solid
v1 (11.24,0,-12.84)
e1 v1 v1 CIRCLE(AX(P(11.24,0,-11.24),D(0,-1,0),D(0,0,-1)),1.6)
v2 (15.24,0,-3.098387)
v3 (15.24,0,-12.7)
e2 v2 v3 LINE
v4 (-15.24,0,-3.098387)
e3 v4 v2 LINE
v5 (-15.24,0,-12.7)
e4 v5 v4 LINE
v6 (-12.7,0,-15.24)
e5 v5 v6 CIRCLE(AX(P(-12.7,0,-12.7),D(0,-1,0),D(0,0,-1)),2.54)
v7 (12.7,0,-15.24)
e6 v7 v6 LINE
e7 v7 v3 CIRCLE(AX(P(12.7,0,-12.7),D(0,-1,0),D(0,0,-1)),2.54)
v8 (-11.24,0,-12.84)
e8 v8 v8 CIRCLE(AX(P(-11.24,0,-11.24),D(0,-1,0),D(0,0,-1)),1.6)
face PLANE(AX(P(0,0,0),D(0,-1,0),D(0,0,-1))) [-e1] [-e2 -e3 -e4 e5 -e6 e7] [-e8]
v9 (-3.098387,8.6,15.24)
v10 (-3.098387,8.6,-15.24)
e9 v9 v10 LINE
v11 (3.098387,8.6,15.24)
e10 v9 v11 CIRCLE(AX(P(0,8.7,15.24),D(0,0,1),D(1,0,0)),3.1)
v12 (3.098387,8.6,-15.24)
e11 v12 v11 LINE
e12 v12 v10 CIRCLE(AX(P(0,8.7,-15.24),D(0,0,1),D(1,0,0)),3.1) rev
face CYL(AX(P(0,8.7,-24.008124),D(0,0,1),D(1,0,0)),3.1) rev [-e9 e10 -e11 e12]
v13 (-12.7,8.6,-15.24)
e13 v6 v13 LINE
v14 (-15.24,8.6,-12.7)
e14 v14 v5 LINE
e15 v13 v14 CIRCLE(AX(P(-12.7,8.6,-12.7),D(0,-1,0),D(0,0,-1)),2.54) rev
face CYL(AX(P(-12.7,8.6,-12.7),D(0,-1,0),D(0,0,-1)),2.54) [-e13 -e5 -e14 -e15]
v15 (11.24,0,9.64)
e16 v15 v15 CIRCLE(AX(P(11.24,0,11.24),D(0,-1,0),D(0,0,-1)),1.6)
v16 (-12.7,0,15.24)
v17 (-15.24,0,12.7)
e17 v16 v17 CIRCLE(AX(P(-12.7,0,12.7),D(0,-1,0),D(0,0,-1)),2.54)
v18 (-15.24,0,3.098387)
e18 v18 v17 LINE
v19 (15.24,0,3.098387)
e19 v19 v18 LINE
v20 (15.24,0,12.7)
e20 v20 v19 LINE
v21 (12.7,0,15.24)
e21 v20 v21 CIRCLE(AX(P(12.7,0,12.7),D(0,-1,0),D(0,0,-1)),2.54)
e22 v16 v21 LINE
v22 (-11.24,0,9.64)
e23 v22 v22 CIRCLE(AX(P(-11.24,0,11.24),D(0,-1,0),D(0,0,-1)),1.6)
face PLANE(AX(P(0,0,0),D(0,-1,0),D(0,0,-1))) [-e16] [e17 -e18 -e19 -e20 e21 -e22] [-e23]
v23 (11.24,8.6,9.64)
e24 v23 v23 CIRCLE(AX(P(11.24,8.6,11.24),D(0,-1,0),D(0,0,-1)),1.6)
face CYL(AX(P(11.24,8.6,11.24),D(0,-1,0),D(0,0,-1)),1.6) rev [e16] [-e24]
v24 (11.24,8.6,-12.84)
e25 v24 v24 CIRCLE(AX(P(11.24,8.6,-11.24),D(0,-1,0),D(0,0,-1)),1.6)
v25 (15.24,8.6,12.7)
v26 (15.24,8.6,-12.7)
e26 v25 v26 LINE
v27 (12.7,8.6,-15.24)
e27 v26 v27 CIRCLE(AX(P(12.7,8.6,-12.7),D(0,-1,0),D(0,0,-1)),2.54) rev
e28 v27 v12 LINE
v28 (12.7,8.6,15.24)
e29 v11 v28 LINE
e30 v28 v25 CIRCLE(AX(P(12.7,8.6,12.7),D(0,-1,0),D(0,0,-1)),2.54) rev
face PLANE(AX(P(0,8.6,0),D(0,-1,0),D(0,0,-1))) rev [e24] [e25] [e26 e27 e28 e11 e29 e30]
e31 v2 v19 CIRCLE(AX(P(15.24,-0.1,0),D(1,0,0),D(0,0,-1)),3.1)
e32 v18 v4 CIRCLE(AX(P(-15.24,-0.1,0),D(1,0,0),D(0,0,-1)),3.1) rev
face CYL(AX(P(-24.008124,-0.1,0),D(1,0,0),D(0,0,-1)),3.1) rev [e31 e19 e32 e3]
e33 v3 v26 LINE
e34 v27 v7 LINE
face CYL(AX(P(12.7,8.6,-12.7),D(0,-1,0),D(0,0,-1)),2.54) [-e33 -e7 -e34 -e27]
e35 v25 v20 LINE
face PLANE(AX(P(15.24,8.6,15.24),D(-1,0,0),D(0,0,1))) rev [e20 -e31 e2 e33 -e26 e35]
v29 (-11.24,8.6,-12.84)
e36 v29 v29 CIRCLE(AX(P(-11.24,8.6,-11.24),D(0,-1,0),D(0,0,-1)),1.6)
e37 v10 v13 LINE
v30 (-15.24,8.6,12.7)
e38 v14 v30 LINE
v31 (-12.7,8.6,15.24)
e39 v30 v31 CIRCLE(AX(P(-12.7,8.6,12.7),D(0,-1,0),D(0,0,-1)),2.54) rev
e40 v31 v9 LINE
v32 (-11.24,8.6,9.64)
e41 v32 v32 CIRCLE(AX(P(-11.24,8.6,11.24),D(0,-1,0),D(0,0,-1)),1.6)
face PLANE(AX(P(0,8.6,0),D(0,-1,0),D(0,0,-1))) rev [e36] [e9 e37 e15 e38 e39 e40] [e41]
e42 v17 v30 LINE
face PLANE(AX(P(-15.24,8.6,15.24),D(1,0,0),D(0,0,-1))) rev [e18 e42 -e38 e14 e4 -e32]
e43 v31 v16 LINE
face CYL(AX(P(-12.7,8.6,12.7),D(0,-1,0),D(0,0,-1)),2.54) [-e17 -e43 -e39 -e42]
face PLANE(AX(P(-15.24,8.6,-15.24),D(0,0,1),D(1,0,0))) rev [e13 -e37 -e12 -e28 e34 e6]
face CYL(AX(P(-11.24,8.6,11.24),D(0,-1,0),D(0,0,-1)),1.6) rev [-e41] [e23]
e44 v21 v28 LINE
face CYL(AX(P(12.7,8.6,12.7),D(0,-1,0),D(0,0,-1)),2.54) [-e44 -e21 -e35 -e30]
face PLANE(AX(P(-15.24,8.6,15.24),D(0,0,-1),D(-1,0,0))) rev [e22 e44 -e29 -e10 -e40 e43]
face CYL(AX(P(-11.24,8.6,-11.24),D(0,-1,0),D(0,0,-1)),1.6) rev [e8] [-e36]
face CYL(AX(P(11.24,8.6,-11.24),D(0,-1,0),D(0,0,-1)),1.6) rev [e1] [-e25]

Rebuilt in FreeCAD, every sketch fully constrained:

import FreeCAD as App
import Part
import Sketcher

V = App.Vector


def edges_at(feature, points):
    """Names of the edges that pass closest to the given points."""
    edges = feature.Shape.Edges
    near = lambda p: min(range(len(edges)), key=lambda i: edges[i].distToShape(Part.Vertex(*p))[0])
    return sorted({f"Edge{near(p) + 1}" for p in points})


def add_polygon(sketch, points):
    """Adds a closed chain of lines whose ends are joined by coincident constraints."""
    first, n = sketch.GeometryCount, len(points)
    for a, b in zip(points, points[1:] + points[:1]):
        sketch.addGeometry(Part.LineSegment(App.Vector(*a, 0), App.Vector(*b, 0)), False)
    for i in range(n):
        sketch.addConstraint(Sketcher.Constraint("Coincident", first + i, 2, first + (i + 1) % n, 1))

doc = App.newDocument("Part")
body = doc.addObject("PartDesign::Body", "Body")

# Sketch on XZ plane
sketch1 = body.newObject("Sketcher::SketchObject", "Sketch")
sketch1.AttachmentSupport = (doc.getObject("XZ_Plane"), [""])
sketch1.MapMode = "FlatFace"
add_polygon(sketch1, [(-15.24, -15.24), (-15.24, 15.24), (15.24, 15.24), (15.24, -15.24)])  # lines 0-3
sketch1.addConstraint([
    Sketcher.Constraint("Vertical", 0),
    Sketcher.Constraint("Horizontal", 1),
    Sketcher.Constraint("Vertical", 2),
    Sketcher.Constraint("Horizontal", 3),
    Sketcher.Constraint("Symmetric", 0, 2, 2, 2, -1, 1),
    Sketcher.Constraint("Equal", 3, 0),
    Sketcher.Constraint("DistanceX", 1, 1, 1, 2, 30.48),
])
pad1 = body.newObject("PartDesign::Pad", "Pad")
pad1.Profile = sketch1
pad1.Length = 8.6
pad1.Reversed = True

# Sketch on XY plane
sketch2 = body.newObject("Sketcher::SketchObject", "Sketch001")
sketch2.AttachmentSupport = (doc.getObject("XY_Plane"), [""])
sketch2.MapMode = "FlatFace"
sketch2.AttachmentOffset = App.Placement(V(0, 0, 15.24), App.Rotation())
sketch2.addGeometry(Part.Circle(V(0, 8.7, 0), V(0, 0, 1), 3.1), False)
sketch2.addConstraint([
    Sketcher.Constraint("PointOnObject", 0, 3, -2),
    Sketcher.Constraint("Diameter", 0, 6.2),
    Sketcher.Constraint("DistanceY", -1, 1, 0, 3, 8.7),
])
pocket1 = body.newObject("PartDesign::Pocket", "Pocket")
pocket1.Profile = sketch2
pocket1.Length = 30.48

# Sketch on YZ plane
sketch3 = body.newObject("Sketcher::SketchObject", "Sketch002")
sketch3.AttachmentSupport = (doc.getObject("YZ_Plane"), [""])
sketch3.MapMode = "FlatFace"
sketch3.AttachmentOffset = App.Placement(V(0, 0, 15.24), App.Rotation())
sketch3.addGeometry(Part.Circle(V(-0.1, 0, 0), V(0, 0, 1), 3.1), False)
sketch3.addConstraint([
    Sketcher.Constraint("PointOnObject", 0, 3, -1),
    Sketcher.Constraint("Diameter", 0, 6.2),
    Sketcher.Constraint("DistanceX", 0, 3, -1, 1, 0.1),
])
pocket2 = body.newObject("PartDesign::Pocket", "Pocket001")
pocket2.Profile = sketch3
pocket2.Length = 30.48

# Sketch on XZ plane
sketch4 = body.newObject("Sketcher::SketchObject", "Sketch003")
sketch4.AttachmentSupport = (doc.getObject("XZ_Plane"), [""])
sketch4.MapMode = "FlatFace"
sketch4.addGeometry([
    Part.Circle(V(-11.24, 11.24, 0), V(0, 0, 1), 1.6),
    Part.Circle(V(11.24, 11.24, 0), V(0, 0, 1), 1.6),
    Part.Circle(V(11.24, -11.24, 0), V(0, 0, 1), 1.6),
    Part.Circle(V(-11.24, -11.24, 0), V(0, 0, 1), 1.6),
], False)
sketch4.addConstraint([
    Sketcher.Constraint("Equal", 0, 1),
    Sketcher.Constraint("Equal", 1, 2),
    Sketcher.Constraint("Equal", 2, 3),
    Sketcher.Constraint("Symmetric", 0, 3, 2, 3, -1, 1),
    Sketcher.Constraint("Symmetric", 1, 3, 3, 3, -1, 1),
    Sketcher.Constraint("Symmetric", 0, 3, 1, 3, -2),
    Sketcher.Constraint("Diameter", 0, 3.2),
    Sketcher.Constraint("DistanceX", 0, 3, -1, 1, 11.24),
    Sketcher.Constraint("DistanceY", -1, 1, 0, 3, 11.24),
])
pocket3 = body.newObject("PartDesign::Pocket", "Pocket002")
pocket3.Profile = sketch4
pocket3.Type = "ThroughAll"
doc.recompute()

fillet = body.newObject("PartDesign::Fillet", "Fillet")
fillet.Base = (pocket3, edges_at(pocket3, [
    (15.24, 4.3, 15.24),
    (-15.24, 4.3, 15.24),
    (-15.24, 4.3, -15.24),
    (15.24, 4.3, -15.24),
]))
fillet.Radius = 2.54

doc.recompute()
